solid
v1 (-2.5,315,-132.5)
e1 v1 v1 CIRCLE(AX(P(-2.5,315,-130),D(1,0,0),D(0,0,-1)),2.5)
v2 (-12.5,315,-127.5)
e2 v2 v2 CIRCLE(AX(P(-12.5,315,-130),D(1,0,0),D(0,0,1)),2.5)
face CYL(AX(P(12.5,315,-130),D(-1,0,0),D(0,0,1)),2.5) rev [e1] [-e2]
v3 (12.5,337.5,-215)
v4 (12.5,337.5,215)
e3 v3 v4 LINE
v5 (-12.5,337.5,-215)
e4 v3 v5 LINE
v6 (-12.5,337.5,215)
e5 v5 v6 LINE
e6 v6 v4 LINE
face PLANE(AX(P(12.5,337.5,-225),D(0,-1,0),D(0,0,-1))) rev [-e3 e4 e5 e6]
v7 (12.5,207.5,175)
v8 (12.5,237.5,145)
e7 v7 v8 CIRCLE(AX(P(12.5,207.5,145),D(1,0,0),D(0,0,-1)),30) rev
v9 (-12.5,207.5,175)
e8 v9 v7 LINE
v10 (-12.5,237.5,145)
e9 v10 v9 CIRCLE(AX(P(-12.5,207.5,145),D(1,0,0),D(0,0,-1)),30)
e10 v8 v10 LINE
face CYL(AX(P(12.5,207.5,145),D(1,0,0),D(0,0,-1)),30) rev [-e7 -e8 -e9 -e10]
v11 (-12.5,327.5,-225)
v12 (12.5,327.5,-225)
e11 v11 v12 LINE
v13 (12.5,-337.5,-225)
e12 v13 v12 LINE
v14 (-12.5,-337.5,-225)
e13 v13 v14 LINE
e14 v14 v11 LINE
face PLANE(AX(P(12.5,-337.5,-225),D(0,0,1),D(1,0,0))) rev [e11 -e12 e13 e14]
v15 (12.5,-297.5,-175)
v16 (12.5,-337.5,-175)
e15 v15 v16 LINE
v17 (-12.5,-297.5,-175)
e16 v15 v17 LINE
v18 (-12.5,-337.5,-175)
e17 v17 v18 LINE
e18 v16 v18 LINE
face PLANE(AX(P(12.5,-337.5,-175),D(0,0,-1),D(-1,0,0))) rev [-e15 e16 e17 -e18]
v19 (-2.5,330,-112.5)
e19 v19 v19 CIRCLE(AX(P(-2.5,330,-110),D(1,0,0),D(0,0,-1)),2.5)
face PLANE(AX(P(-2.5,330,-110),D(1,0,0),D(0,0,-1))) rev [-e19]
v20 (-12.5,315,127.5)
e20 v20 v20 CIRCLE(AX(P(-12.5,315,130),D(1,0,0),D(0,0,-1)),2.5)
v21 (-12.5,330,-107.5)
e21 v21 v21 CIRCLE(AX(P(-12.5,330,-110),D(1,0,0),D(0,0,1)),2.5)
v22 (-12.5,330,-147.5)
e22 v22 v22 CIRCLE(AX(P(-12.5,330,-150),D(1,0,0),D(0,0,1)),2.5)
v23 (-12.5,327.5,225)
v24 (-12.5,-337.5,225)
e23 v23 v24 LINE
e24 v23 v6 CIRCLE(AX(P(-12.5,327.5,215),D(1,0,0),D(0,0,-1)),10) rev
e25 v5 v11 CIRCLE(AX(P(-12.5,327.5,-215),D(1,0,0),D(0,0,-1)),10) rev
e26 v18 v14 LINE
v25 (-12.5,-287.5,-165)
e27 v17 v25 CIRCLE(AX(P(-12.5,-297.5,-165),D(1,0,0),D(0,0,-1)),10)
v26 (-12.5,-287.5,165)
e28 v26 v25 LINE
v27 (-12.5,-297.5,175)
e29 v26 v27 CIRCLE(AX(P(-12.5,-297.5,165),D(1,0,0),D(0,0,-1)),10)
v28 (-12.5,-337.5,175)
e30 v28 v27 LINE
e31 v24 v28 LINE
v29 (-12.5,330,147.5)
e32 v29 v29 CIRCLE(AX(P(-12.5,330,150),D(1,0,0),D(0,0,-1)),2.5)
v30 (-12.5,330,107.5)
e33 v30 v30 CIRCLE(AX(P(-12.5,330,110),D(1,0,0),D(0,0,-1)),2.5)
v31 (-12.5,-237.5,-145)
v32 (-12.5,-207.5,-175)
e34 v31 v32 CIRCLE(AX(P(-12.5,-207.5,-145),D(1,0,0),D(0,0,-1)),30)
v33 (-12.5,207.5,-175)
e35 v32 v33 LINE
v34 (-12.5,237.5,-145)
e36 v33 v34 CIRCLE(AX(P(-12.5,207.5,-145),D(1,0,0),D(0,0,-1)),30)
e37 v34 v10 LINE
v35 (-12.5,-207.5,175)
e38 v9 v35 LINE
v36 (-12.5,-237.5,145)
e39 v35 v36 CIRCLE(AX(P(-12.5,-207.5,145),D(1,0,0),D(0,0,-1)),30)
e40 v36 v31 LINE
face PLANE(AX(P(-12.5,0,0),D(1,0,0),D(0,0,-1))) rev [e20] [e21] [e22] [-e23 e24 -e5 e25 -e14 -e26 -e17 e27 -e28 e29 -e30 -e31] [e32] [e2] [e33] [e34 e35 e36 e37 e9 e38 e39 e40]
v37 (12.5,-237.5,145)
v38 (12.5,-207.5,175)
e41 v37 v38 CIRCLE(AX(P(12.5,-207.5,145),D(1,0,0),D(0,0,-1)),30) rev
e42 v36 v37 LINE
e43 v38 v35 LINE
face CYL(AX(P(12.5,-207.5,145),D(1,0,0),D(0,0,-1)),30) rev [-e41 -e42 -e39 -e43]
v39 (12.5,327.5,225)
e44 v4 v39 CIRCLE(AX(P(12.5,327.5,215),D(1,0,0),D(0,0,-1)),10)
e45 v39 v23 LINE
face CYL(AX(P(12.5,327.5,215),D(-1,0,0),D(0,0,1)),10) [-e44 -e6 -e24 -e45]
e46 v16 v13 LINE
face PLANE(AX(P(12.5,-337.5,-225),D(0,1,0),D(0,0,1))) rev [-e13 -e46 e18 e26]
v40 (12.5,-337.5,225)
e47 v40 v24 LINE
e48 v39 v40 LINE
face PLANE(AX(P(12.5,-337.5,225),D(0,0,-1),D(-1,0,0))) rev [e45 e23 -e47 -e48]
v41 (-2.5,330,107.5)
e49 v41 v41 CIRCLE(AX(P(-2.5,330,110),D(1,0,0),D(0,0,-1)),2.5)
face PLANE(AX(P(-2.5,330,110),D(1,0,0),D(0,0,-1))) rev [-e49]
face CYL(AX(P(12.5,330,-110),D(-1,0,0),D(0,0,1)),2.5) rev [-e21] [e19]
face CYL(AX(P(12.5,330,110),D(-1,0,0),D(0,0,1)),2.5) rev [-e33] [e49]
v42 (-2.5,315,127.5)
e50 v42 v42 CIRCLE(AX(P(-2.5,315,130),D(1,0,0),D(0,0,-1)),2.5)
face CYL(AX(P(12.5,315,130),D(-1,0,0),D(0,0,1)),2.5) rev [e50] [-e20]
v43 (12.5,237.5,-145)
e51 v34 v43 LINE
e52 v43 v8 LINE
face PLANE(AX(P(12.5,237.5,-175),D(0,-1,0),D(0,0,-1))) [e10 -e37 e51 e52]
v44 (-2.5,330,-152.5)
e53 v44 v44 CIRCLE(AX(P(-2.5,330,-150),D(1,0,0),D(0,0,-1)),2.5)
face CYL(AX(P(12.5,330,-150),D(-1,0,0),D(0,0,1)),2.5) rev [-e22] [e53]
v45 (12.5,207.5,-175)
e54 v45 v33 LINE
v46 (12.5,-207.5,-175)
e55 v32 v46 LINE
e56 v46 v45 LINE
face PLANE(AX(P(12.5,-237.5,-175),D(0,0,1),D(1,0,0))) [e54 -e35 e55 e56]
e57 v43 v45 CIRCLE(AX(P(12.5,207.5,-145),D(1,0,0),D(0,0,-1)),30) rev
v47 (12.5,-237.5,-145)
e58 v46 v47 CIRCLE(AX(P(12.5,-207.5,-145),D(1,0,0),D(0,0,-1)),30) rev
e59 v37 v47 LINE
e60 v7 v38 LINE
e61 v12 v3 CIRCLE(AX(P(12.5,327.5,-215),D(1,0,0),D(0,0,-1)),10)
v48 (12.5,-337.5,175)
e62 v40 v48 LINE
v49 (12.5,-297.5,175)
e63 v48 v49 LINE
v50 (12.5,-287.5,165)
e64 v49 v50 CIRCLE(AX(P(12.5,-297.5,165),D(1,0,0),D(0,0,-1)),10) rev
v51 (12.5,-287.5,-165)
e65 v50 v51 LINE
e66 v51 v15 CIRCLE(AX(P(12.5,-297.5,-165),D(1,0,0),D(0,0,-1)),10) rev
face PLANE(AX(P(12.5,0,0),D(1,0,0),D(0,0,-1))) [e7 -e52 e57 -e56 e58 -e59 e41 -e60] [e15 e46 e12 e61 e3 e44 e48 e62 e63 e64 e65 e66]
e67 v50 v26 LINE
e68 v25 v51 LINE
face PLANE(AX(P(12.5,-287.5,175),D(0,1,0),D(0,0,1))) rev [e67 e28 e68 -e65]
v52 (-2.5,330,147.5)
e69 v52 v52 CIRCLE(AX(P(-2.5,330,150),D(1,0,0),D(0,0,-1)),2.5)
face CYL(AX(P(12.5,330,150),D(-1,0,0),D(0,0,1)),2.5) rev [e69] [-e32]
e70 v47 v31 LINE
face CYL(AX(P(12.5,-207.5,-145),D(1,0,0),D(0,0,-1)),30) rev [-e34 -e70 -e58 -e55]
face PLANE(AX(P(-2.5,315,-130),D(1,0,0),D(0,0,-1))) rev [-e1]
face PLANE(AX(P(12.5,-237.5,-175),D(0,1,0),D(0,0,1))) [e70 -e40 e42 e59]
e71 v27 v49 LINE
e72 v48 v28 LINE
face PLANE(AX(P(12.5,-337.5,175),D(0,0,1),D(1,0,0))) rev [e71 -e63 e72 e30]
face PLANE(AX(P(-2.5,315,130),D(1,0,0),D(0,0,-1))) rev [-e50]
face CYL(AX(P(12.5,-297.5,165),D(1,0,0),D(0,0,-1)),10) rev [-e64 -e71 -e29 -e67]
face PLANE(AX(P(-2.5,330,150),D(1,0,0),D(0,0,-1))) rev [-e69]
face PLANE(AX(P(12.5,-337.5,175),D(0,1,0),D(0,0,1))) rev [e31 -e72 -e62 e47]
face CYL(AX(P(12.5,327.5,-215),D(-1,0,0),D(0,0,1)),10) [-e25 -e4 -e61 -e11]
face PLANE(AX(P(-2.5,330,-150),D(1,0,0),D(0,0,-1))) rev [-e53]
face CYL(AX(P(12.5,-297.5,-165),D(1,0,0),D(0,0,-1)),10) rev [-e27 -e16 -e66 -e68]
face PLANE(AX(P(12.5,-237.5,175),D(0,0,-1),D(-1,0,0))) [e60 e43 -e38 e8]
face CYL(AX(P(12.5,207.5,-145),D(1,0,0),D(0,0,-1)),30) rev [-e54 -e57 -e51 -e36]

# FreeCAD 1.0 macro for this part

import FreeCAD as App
import Part
import Sketcher
from FreeCAD import Vector
Q = App.Units.Quantity


def edges_at(feature, points):
    """Names of the edges that pass closest to the given points."""
    edges = feature.Shape.Edges
    near = lambda p: min(range(len(edges)), key=lambda i: edges[i].distToShape(Part.Vertex(*p))[0])
    return sorted({f"Edge{near(p) + 1}" for p in points})


def add_polygon(sketch, points):
    """Adds a closed chain of lines whose ends are joined by coincident constraints."""
    first, n = sketch.GeometryCount, len(points)
    for a, b in zip(points, points[1:] + points[:1]):
        sketch.addGeometry(Part.LineSegment(App.Vector(*a, 0), App.Vector(*b, 0)), False)
    for i in range(n):
        sketch.addConstraint(Sketcher.Constraint("Coincident", first + i, 2, first + (i + 1) % n, 1))

doc = App.newDocument("Part")
params = doc.addObject("Spreadsheet::Sheet", "Params")
for row, (alias, value) in enumerate([
    ("sketch1_diameter", "5 mm"),
    ("sketch1_width", "50 mm"),
    ("sketch1_width2", "675 mm"),
    ("sketch1_width3", "475 mm"),
    ("sketch1_height", "350 mm"),
    ("pad1_length", "25 mm"),
    ("sketch2_diameter", "5 mm"),
    ("pad2_length", "15 mm"),
    ("fillet_radius", "10 mm"),
    ("fillet2_radius", "30 mm"),
    ("fillet3_radius", "10 mm"),
], start=1):
    params.set(f"A{row}", alias)
    params.set(f"B{row}", "=" + value)
    params.setAlias(f"B{row}", alias)

body = doc.addObject("PartDesign::Body", "Body")

# Sketch on YZ plane
sketch1 = doc.addObject("Sketcher::SketchObject", "Sketch")
body.addObject(sketch1)
sketch1.AttachmentSupport = (doc.YZ_Plane, [""])
sketch1.MapMode = "FlatFace"
add_polygon(sketch1, [(-337.5, 225), (-337.5, 175), (-287.5, 175), (-287.5, -175), (-337.5, -175), (-337.5, -225), (337.5, -225), (337.5, 225)])  # lines 0-7
add_polygon(sketch1, [(-237.5, 175), (237.5, 175), (237.5, -175), (-237.5, -175)])  # lines 8-11
sketch1.addGeometry(Part.Circle(Vector(330, -150, 0), Vector(0, 0, 1), 2.5), False)  # 12
sketch1.addGeometry(Part.Circle(Vector(315, -130, 0), Vector(0, 0, 1), 2.5), False)  # 13
sketch1.addGeometry(Part.Circle(Vector(330, -110, 0), Vector(0, 0, 1), 2.5), False)  # 14
sketch1.addGeometry(Part.Circle(Vector(330, 110, 0), Vector(0, 0, 1), 2.5), False)  # 15
sketch1.addGeometry(Part.Circle(Vector(315, 130, 0), Vector(0, 0, 1), 2.5), False)  # 16
sketch1.addGeometry(Part.Circle(Vector(330, 150, 0), Vector(0, 0, 1), 2.5), False)  # 17
sketch1.addConstraint(Sketcher.Constraint("Vertical", 0))
sketch1.addConstraint(Sketcher.Constraint("Horizontal", 1))
sketch1.addConstraint(Sketcher.Constraint("Vertical", 2))
sketch1.addConstraint(Sketcher.Constraint("Horizontal", 3))
sketch1.addConstraint(Sketcher.Constraint("Vertical", 4))
sketch1.addConstraint(Sketcher.Constraint("Horizontal", 5))
sketch1.addConstraint(Sketcher.Constraint("Vertical", 6))
sketch1.addConstraint(Sketcher.Constraint("Horizontal", 7))
sketch1.addConstraint(Sketcher.Constraint("Horizontal", 8))
sketch1.addConstraint(Sketcher.Constraint("Vertical", 9))
sketch1.addConstraint(Sketcher.Constraint("Horizontal", 10))
sketch1.addConstraint(Sketcher.Constraint("Vertical", 11))
sketch1.addConstraint(Sketcher.Constraint("Equal", 12, 13))
sketch1.addConstraint(Sketcher.Constraint("Equal", 13, 14))
sketch1.addConstraint(Sketcher.Constraint("Equal", 14, 15))
sketch1.addConstraint(Sketcher.Constraint("Equal", 15, 16))
sketch1.addConstraint(Sketcher.Constraint("Equal", 16, 17))
sketch1.addConstraint(Sketcher.Constraint("Symmetric", 4, 2, 6, 2, -1, 1))
sketch1.addConstraint(Sketcher.Constraint("Symmetric", 8, 2, 10, 2, -1, 1))
sketch1.addConstraint(Sketcher.Constraint("Symmetric", 14, 3, 15, 3, -1))
sketch1.addConstraint(Sketcher.Constraint("Symmetric", 13, 3, 16, 3, -1))
sketch1.addConstraint(Sketcher.Constraint("Symmetric", 12, 3, 17, 3, -1))
sketch1.addConstraint(Sketcher.Constraint("Symmetric", 0, 2, 3, 2, -1))
sketch1.addConstraint(Sketcher.Constraint("Horizontal", 1, 2, 8, 2))
sketch1.addConstraint(Sketcher.Constraint("Vertical", 12, 3, 14, 3))
sketch1.addConstraint(Sketcher.Constraint("Equal", 3, 0))
sketch1.addConstraint(Sketcher.Constraint("Diameter", 12, Q("5 mm")))
sketch1.addConstraint(Sketcher.Constraint("DistanceX", 1, 1, 1, 2, Q("50 mm")))
sketch1.addConstraint(Sketcher.Constraint("DistanceX", 5, 1, 5, 2, Q("675 mm")))
sketch1.addConstraint(Sketcher.Constraint("DistanceX", 8, 1, 8, 2, Q("475 mm")))
sketch1.addConstraint(Sketcher.Constraint("DistanceY", 2, 2, 2, 1, Q("350 mm")))
sketch1.addConstraint(Sketcher.Constraint("DistanceX", -1, 1, 12, 3, Q("330 mm")))
sketch1.addConstraint(Sketcher.Constraint("DistanceY", 12, 3, -1, 1, Q("150 mm")))
sketch1.addConstraint(Sketcher.Constraint("DistanceX", -1, 1, 13, 3, Q("315 mm")))
sketch1.addConstraint(Sketcher.Constraint("DistanceY", 13, 3, -1, 1, Q("130 mm")))
sketch1.addConstraint(Sketcher.Constraint("DistanceY", 14, 3, -1, 1, Q("110 mm")))
sketch1.setExpression("Constraints[38]", "Params.sketch1_diameter")
sketch1.setExpression("Constraints[39]", "Params.sketch1_width")
sketch1.setExpression("Constraints[40]", "Params.sketch1_width2")
sketch1.setExpression("Constraints[41]", "Params.sketch1_width3")
sketch1.setExpression("Constraints[42]", "Params.sketch1_height")
pad1 = doc.addObject("PartDesign::Pad", "Pad")
body.addObject(pad1)
pad1.Profile = sketch1
pad1.setExpression("Length", "Params.pad1_length")
pad1.Midplane = True

# Sketch on YZ plane
sketch2 = doc.addObject("Sketcher::SketchObject", "Sketch001")
body.addObject(sketch2)
sketch2.AttachmentSupport = (doc.YZ_Plane, [""])
sketch2.MapMode = "FlatFace"
sketch2.AttachmentOffset = App.Placement(Vector(0, 0, -2.5), App.Rotation())
sketch2.addGeometry(Part.Circle(Vector(330, 110, 0), Vector(0, 0, 1), 2.5), False)
sketch2.addGeometry(Part.Circle(Vector(315, 130, 0), Vector(0, 0, 1), 2.5), False)
sketch2.addGeometry(Part.Circle(Vector(330, 150, 0), Vector(0, 0, 1), 2.5), False)
sketch2.addGeometry(Part.Circle(Vector(330, -150, 0), Vector(0, 0, 1), 2.5), False)
sketch2.addGeometry(Part.Circle(Vector(315, -130, 0), Vector(0, 0, 1), 2.5), False)
sketch2.addGeometry(Part.Circle(Vector(330, -110, 0), Vector(0, 0, 1), 2.5), False)
sketch2.addConstraint(Sketcher.Constraint("Equal", 0, 1))
sketch2.addConstraint(Sketcher.Constraint("Equal", 1, 2))
sketch2.addConstraint(Sketcher.Constraint("Equal", 2, 3))
sketch2.addConstraint(Sketcher.Constraint("Equal", 3, 4))
sketch2.addConstraint(Sketcher.Constraint("Equal", 4, 5))
sketch2.addConstraint(Sketcher.Constraint("Symmetric", 2, 3, 3, 3, -1))
sketch2.addConstraint(Sketcher.Constraint("Symmetric", 1, 3, 4, 3, -1))
sketch2.addConstraint(Sketcher.Constraint("Symmetric", 0, 3, 5, 3, -1))
sketch2.addConstraint(Sketcher.Constraint("Vertical", 0, 3, 2, 3))
sketch2.addConstraint(Sketcher.Constraint("Diameter", 0, Q("5 mm")))
sketch2.addConstraint(Sketcher.Constraint("DistanceX", -1, 1, 0, 3, Q("330 mm")))
sketch2.addConstraint(Sketcher.Constraint("DistanceY", -1, 1, 0, 3, Q("110 mm")))
sketch2.addConstraint(Sketcher.Constraint("DistanceX", -1, 1, 1, 3, Q("315 mm")))
sketch2.addConstraint(Sketcher.Constraint("DistanceY", -1, 1, 1, 3, Q("130 mm")))
sketch2.addConstraint(Sketcher.Constraint("DistanceY", -1, 1, 2, 3, Q("150 mm")))
sketch2.setExpression("Constraints[9]", "Params.sketch2_diameter")
pad2 = doc.addObject("PartDesign::Pad", "Pad001")
body.addObject(pad2)
pad2.Profile = sketch2
pad2.setExpression("Length", "Params.pad2_length")
doc.recompute()

fillet = doc.addObject("PartDesign::Fillet", "Fillet")
body.addObject(fillet)
fillet.Base = (pad2, edges_at(pad2, [(0, -287.5, -175), (0, -287.5, 175)]))
fillet.setExpression("Radius", "Params.fillet_radius")
doc.recompute()

fillet2 = doc.addObject("PartDesign::Fillet", "Fillet001")
body.addObject(fillet2)
fillet2.Base = (fillet, edges_at(fillet, [
    (0, 237.5, 175),
    (0, -237.5, 175),
    (0, -237.5, -175),
    (0, 237.5, -175),
]))
fillet2.setExpression("Radius", "Params.fillet2_radius")
doc.recompute()

fillet3 = doc.addObject("PartDesign::Fillet", "Fillet002")
body.addObject(fillet3)
fillet3.Base = (fillet2, edges_at(fillet2, [(0, 337.5, 225), (0, 337.5, -225)]))
fillet3.setExpression("Radius", "Params.fillet3_radius")

doc.recompute()
